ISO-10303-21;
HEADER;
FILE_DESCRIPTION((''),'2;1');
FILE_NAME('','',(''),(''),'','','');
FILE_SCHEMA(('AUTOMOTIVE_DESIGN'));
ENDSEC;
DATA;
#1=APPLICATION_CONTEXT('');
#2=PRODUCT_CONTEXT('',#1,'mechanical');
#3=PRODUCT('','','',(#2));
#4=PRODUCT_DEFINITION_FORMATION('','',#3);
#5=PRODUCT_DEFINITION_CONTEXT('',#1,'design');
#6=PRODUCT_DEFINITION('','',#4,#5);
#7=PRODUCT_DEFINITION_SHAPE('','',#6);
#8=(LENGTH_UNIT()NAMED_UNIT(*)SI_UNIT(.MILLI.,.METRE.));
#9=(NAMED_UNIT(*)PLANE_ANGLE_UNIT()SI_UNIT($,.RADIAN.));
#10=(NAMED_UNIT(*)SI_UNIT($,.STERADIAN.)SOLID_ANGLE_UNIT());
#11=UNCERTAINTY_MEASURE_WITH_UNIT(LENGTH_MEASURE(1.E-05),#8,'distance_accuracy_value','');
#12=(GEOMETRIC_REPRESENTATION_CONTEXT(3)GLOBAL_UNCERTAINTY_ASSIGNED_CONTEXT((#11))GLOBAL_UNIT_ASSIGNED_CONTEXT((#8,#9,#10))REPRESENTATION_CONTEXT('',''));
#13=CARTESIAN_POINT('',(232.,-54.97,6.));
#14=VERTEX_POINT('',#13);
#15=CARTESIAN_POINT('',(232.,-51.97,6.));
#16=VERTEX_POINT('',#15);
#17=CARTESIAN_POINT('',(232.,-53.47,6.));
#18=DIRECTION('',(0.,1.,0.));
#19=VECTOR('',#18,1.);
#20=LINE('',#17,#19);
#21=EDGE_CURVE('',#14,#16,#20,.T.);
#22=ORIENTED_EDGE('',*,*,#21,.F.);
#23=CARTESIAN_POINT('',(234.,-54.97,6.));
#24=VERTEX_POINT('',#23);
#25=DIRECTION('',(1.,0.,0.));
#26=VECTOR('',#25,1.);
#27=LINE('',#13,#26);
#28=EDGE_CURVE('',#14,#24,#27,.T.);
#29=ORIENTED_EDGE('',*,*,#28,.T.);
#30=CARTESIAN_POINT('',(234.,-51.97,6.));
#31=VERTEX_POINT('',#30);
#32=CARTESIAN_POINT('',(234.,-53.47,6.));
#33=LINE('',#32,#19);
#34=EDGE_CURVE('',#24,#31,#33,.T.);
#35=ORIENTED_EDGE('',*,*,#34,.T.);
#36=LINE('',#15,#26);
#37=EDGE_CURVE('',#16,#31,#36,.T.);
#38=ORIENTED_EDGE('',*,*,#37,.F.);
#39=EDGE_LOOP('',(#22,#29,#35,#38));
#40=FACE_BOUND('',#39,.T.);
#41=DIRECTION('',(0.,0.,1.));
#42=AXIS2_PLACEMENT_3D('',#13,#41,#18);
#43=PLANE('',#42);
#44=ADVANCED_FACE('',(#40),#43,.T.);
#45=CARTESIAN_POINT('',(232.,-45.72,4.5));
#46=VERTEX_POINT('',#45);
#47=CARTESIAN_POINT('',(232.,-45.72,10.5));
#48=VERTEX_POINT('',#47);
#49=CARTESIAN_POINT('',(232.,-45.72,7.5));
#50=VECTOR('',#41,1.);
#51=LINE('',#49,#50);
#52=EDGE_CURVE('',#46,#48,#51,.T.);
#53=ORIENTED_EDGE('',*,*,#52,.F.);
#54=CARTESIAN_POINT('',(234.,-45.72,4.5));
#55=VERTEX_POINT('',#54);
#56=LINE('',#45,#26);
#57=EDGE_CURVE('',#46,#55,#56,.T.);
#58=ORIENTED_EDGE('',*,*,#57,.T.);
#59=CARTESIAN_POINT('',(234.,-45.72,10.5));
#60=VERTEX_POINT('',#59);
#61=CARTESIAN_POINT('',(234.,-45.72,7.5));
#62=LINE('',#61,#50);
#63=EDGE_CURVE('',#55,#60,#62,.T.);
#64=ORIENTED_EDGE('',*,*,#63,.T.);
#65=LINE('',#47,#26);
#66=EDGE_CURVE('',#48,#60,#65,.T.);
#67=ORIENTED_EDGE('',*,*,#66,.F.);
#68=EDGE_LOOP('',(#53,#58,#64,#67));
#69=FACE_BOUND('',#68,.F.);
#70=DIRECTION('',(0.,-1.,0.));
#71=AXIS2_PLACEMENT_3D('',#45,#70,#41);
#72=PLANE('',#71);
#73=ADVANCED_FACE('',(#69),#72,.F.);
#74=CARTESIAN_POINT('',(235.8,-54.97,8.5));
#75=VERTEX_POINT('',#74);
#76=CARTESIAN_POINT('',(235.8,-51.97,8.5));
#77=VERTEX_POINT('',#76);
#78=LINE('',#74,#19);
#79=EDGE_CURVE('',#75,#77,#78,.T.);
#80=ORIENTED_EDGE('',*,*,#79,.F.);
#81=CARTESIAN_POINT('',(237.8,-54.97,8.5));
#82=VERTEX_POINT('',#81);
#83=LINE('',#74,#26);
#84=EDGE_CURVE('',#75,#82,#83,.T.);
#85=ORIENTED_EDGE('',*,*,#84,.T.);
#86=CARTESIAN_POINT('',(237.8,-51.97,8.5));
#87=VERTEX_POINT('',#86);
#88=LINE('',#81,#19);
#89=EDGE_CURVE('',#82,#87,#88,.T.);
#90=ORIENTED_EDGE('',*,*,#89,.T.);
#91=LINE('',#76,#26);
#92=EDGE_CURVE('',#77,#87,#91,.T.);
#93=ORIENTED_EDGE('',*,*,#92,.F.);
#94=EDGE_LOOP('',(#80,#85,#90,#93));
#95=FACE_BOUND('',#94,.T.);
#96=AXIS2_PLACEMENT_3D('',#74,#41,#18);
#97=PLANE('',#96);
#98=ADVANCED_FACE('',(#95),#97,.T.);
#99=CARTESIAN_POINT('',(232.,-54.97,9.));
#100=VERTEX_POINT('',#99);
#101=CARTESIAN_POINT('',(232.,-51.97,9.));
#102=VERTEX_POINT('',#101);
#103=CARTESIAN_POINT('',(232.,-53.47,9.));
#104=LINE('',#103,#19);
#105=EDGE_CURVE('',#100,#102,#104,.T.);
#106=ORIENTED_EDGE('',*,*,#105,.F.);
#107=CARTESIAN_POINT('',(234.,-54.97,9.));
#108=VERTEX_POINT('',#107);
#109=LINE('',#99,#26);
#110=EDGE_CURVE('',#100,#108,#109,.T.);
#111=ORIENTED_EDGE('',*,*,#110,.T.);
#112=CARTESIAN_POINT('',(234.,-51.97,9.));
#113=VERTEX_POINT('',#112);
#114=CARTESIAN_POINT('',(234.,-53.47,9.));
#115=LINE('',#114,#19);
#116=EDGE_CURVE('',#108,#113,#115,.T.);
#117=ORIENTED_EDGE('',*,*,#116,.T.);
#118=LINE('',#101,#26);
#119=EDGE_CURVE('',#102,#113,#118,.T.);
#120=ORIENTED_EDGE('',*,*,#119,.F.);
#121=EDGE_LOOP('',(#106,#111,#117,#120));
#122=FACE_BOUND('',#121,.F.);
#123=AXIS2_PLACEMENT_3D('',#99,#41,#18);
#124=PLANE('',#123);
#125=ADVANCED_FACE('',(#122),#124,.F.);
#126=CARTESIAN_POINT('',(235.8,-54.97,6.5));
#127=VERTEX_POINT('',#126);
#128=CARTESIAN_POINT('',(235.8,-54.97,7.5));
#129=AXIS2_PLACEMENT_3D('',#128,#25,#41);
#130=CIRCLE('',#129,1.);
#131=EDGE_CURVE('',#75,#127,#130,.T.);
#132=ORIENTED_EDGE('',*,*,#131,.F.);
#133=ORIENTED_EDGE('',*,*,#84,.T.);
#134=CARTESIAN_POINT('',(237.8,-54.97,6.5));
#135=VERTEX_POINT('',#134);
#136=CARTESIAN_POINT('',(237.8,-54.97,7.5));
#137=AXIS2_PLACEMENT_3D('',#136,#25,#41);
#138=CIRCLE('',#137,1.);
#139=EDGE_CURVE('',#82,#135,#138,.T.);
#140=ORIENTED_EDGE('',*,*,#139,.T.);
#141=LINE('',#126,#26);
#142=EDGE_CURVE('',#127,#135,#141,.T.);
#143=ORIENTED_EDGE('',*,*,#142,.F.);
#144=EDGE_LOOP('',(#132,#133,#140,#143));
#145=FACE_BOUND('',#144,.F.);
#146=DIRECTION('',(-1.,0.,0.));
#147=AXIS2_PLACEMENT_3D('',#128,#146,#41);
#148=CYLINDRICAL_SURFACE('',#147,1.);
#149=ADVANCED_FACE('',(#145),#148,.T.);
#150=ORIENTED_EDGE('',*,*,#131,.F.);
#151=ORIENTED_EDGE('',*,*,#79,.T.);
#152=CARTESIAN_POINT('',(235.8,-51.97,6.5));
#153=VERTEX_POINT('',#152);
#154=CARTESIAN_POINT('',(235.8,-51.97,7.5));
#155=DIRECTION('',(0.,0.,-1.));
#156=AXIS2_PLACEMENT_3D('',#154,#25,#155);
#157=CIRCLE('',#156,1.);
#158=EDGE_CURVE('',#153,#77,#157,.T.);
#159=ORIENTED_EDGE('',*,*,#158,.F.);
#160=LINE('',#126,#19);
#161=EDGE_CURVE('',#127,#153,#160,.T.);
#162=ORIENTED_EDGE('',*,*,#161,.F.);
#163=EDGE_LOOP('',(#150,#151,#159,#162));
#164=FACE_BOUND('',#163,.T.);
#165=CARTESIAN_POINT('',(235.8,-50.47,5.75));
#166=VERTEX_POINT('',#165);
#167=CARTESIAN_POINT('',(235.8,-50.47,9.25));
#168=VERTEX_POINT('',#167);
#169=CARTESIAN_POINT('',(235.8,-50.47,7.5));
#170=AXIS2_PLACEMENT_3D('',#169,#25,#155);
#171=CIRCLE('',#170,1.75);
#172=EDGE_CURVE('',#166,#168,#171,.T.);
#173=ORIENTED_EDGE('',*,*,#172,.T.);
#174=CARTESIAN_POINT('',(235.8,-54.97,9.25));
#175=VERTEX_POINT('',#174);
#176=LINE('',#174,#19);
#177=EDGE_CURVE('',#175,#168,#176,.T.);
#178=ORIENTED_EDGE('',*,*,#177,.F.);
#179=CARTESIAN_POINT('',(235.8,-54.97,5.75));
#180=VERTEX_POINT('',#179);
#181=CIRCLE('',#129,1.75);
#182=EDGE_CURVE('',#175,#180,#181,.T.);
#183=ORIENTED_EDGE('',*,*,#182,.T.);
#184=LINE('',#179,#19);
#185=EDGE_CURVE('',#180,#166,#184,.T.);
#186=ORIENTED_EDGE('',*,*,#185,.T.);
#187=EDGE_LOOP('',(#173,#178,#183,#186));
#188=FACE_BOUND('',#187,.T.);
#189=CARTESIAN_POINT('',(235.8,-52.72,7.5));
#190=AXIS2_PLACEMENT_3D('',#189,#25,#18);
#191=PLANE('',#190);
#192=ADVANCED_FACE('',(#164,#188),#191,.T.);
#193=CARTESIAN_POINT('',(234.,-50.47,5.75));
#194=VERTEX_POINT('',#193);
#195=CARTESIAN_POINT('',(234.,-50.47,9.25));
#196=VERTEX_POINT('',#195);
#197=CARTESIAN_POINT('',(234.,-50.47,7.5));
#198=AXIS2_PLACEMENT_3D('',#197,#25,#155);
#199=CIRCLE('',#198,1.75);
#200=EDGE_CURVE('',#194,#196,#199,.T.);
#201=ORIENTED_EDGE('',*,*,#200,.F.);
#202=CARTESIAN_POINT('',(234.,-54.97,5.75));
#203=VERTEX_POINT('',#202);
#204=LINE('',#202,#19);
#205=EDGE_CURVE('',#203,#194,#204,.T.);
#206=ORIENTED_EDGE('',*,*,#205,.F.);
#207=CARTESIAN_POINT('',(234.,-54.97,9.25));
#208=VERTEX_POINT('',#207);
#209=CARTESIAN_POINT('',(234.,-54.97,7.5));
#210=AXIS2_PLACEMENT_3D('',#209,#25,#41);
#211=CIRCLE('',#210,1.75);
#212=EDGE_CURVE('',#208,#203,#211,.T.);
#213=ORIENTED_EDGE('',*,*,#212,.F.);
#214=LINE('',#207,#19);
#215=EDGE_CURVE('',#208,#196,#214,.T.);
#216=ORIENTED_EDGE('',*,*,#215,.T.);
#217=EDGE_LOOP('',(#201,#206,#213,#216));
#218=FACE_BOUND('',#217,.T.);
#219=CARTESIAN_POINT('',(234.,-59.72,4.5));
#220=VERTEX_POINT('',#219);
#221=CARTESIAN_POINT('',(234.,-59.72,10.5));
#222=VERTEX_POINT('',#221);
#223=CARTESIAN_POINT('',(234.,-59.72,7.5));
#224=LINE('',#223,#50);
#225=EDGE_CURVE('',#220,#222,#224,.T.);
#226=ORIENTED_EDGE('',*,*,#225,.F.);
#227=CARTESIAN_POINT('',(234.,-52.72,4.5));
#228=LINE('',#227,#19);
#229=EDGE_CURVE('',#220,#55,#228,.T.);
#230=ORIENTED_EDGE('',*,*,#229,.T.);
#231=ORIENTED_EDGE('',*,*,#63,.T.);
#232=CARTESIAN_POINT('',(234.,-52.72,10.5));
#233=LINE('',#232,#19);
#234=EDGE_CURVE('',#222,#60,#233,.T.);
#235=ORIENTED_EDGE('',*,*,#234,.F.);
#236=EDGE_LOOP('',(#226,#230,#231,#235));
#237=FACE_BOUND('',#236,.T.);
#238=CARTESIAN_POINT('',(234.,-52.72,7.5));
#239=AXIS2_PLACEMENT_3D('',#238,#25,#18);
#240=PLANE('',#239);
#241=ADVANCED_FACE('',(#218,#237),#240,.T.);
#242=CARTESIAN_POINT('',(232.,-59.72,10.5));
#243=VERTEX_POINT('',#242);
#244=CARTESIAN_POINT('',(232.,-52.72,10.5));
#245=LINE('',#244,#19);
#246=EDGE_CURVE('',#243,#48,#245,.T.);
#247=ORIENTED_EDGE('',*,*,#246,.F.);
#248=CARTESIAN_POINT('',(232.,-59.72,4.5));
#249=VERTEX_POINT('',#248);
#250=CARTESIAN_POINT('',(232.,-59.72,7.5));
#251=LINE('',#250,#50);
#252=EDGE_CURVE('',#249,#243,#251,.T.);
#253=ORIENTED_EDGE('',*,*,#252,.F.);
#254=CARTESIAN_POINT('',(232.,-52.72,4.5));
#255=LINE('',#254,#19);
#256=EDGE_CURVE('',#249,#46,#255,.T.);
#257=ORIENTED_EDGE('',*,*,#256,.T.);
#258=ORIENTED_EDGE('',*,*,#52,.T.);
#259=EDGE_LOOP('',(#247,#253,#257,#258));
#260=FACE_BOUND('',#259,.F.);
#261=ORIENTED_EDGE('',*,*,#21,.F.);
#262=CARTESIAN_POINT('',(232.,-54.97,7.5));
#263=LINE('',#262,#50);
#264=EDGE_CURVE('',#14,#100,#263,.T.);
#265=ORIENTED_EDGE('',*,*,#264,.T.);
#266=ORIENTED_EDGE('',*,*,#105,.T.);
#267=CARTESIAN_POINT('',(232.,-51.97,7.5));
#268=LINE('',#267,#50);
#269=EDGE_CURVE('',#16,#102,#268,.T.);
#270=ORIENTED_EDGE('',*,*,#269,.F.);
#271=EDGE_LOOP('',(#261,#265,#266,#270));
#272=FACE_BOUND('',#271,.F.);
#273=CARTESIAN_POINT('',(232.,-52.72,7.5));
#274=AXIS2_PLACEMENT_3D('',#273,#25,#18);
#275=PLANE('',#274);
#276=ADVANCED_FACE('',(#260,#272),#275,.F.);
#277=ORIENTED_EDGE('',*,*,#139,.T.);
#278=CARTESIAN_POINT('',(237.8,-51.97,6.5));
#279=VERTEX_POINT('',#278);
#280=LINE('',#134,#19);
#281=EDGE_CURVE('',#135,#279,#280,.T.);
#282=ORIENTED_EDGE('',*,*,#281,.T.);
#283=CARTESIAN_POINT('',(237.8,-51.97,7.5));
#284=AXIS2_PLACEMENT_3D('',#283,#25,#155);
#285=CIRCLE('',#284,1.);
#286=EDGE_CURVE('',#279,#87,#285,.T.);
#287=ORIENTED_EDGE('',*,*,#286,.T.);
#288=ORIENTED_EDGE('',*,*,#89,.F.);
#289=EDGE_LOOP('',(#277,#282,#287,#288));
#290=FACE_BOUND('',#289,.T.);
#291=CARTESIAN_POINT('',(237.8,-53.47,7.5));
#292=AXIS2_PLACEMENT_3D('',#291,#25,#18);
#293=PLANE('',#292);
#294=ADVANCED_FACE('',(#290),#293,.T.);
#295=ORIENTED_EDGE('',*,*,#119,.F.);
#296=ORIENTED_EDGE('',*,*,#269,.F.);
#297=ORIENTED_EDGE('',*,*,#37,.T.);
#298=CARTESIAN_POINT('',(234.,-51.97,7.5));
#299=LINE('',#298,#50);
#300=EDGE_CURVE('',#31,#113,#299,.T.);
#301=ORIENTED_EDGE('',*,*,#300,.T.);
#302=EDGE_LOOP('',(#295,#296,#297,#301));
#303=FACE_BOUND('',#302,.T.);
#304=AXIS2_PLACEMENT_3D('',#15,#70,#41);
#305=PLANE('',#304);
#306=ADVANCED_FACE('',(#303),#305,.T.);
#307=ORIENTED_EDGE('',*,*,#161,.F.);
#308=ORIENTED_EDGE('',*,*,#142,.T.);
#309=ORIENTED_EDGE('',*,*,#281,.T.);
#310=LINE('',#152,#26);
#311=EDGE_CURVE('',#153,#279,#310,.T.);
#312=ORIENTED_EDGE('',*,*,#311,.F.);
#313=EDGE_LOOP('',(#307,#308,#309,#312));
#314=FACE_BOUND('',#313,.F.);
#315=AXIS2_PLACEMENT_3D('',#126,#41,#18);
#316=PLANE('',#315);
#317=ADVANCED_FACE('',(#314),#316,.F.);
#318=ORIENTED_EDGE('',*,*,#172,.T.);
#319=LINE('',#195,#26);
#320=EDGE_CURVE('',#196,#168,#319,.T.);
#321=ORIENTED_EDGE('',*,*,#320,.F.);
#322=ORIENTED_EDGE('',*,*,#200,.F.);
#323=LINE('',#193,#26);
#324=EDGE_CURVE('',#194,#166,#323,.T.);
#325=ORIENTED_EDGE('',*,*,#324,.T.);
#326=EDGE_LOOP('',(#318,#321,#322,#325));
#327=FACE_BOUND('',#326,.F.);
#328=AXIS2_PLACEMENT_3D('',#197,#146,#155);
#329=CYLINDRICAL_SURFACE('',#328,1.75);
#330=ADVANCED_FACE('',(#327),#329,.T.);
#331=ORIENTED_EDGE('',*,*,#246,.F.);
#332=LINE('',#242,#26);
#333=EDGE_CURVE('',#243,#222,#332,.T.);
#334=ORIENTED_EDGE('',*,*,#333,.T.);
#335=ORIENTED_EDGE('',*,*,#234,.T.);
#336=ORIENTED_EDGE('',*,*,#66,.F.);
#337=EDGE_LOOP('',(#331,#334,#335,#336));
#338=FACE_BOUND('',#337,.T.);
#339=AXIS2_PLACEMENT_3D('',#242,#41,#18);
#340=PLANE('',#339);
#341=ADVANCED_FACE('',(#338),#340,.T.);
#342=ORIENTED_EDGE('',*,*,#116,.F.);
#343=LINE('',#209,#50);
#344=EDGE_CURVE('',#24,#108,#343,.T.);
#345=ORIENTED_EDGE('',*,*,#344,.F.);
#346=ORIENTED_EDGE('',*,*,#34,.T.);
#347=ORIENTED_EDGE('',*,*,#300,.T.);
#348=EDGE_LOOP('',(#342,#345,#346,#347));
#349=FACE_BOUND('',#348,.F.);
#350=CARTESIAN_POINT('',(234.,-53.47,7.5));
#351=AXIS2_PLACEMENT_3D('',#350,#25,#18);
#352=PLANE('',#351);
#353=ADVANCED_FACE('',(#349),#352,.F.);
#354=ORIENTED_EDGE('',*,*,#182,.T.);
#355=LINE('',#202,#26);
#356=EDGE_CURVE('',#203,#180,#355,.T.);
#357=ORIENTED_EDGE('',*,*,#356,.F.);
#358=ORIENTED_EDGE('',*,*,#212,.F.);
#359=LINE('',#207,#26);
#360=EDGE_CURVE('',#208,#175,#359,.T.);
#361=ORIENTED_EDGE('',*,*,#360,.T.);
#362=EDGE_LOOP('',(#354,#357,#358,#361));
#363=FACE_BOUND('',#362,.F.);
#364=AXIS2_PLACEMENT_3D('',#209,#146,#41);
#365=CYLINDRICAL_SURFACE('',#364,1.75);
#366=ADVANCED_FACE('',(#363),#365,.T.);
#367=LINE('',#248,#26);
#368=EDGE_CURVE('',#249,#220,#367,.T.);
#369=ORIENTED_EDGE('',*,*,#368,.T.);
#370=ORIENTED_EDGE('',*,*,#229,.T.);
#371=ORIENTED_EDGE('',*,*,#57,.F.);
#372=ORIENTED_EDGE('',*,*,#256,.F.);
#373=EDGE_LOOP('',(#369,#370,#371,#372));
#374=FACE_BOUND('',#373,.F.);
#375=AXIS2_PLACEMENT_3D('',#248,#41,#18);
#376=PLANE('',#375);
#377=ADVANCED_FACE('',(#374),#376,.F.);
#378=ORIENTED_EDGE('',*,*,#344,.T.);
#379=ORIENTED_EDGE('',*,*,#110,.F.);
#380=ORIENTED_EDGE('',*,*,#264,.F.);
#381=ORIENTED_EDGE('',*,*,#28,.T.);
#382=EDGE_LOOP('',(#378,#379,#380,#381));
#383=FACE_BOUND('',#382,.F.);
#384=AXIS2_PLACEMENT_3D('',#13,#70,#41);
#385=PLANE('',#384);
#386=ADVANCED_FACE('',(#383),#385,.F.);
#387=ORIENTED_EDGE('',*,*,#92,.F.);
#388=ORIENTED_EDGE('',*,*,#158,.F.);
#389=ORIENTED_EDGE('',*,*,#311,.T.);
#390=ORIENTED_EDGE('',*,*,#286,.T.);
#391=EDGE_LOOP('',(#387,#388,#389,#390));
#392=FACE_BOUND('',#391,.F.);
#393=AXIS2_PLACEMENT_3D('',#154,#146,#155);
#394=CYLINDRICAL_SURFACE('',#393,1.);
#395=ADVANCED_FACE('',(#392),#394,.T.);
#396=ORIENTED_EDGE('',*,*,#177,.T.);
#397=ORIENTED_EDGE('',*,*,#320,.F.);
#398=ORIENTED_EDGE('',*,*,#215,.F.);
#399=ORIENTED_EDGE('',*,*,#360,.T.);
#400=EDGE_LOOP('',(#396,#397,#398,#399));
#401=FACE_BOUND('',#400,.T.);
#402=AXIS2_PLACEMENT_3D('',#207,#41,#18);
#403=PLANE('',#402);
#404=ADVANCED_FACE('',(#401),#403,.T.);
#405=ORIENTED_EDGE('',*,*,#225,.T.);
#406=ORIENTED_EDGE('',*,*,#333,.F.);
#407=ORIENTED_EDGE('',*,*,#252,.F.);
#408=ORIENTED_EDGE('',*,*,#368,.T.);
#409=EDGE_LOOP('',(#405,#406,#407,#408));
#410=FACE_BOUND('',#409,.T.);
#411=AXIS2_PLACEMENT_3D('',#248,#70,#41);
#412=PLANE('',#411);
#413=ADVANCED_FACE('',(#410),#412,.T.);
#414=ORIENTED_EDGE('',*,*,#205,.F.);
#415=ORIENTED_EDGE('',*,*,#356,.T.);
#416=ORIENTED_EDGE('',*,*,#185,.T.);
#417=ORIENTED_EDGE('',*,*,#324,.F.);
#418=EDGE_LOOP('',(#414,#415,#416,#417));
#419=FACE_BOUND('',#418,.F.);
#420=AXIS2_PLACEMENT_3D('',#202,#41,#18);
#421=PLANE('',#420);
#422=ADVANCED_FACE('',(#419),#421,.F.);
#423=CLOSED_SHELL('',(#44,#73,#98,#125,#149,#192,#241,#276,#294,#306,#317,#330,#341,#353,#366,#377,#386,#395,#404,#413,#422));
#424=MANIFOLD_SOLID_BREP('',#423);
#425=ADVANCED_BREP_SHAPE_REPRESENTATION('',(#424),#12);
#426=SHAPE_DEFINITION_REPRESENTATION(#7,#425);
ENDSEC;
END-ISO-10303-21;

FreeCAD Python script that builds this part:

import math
import FreeCAD as App
import Part
import Sketcher


def add_polygon(sketch, points):
    """Adds a closed chain of lines whose ends are joined by coincident constraints."""
    first, n = sketch.GeometryCount, len(points)
    for a, b in zip(points, points[1:] + points[:1]):
        sketch.addGeometry(Part.LineSegment(App.Vector(*a, 0), App.Vector(*b, 0)), False)
    for i in range(n):
        sketch.addConstraint(Sketcher.Constraint("Coincident", first + i, 2, first + (i + 1) % n, 1))

doc = App.newDocument("Part")
body = doc.addObject("PartDesign::Body", "Body")

# Sketch on YZ plane
sketch1 = body.newObject("Sketcher::SketchObject", "Sketch")
sketch1.AttachmentSupport = (doc.getObject("YZ_Plane"), [""])
sketch1.MapMode = "FlatFace"
sketch1.AttachmentOffset = App.Placement(App.Vector(0, 0, 232), App.Rotation())
add_polygon(sketch1, [(-59.72, 10.5), (-59.72, 4.5), (-45.72, 4.5), (-45.72, 10.5)])  # lines 0-3
sketch1.addConstraint([
    Sketcher.Constraint("Vertical", 0),
    Sketcher.Constraint("Horizontal", 1),
    Sketcher.Constraint("Vertical", 2),
    Sketcher.Constraint("Horizontal", 3),
    Sketcher.Constraint("DistanceX", 1, 1, 1, 2, 14.0),
    Sketcher.Constraint("DistanceY", 0, 2, 0, 1, 6.0),
    Sketcher.Constraint("DistanceY", -1, 1, 0, 2, 4.5),
    Sketcher.Constraint("DistanceX", 0, 2, -1, 1, 59.72),
])
pad1 = body.newObject("PartDesign::Pad", "Pad")
pad1.Profile = sketch1
pad1.Length = 2

# Sketch on YZ plane
sketch2 = body.newObject("Sketcher::SketchObject", "Sketch001")
sketch2.AttachmentSupport = (doc.getObject("YZ_Plane"), [""])
sketch2.MapMode = "FlatFace"
sketch2.AttachmentOffset = App.Placement(App.Vector(0, 0, 234), App.Rotation())
sketch2.addGeometry([
    Part.ArcOfCircle(Part.Circle(App.Vector(-54.97, 7.5, 0), App.Vector(0, 0, 1), 1.75), math.radians(90), math.radians(270)),
    Part.LineSegment(App.Vector(-54.97, 5.75, 0), App.Vector(-50.47, 5.75, 0)),
    Part.ArcOfCircle(Part.Circle(App.Vector(-50.47, 7.5, 0), App.Vector(0, 0, 1), 1.75), math.radians(-90), math.radians(90)),
    Part.LineSegment(App.Vector(-50.47, 9.25, 0), App.Vector(-54.97, 9.25, 0)),
], False)
sketch2.addConstraint([
    Sketcher.Constraint("Tangent", 0, 2, 1, 1),
    Sketcher.Constraint("Tangent", 1, 2, 2, 1),
    Sketcher.Constraint("Tangent", 2, 2, 3, 1),
    Sketcher.Constraint("Tangent", 3, 2, 0, 1),
    Sketcher.Constraint("Horizontal", 1),
    Sketcher.Constraint("Horizontal", 3),
    Sketcher.Constraint("Radius", 0, 1.75),
    Sketcher.Constraint("DistanceX", 1, 1, 1, 2, 4.5),
    Sketcher.Constraint("DistanceY", -1, 1, 0, 3, 7.5),
    Sketcher.Constraint("DistanceX", 0, 3, -1, 1, 54.97),
])
pad2 = body.newObject("PartDesign::Pad", "Pad001")
pad2.Profile = sketch2
pad2.Length = 1.8

# Sketch on YZ plane
sketch3 = body.newObject("Sketcher::SketchObject", "Sketch002")
sketch3.AttachmentSupport = (doc.getObject("YZ_Plane"), [""])
sketch3.MapMode = "FlatFace"
sketch3.AttachmentOffset = App.Placement(App.Vector(0, 0, 235.8), App.Rotation())
sketch3.addGeometry([
    Part.ArcOfCircle(Part.Circle(App.Vector(-54.97, 7.5, 0), App.Vector(0, 0, 1), 1), math.radians(90), math.radians(270)),
    Part.LineSegment(App.Vector(-54.97, 6.5, 0), App.Vector(-51.97, 6.5, 0)),
    Part.ArcOfCircle(Part.Circle(App.Vector(-51.97, 7.5, 0), App.Vector(0, 0, 1), 1), math.radians(-90), math.radians(90)),
    Part.LineSegment(App.Vector(-51.97, 8.5, 0), App.Vector(-54.97, 8.5, 0)),
], False)
sketch3.addConstraint([
    Sketcher.Constraint("Tangent", 0, 2, 1, 1),
    Sketcher.Constraint("Tangent", 1, 2, 2, 1),
    Sketcher.Constraint("Tangent", 2, 2, 3, 1),
    Sketcher.Constraint("Tangent", 3, 2, 0, 1),
    Sketcher.Constraint("Horizontal", 1),
    Sketcher.Constraint("Horizontal", 3),
    Sketcher.Constraint("Radius", 0, 1.0),
    Sketcher.Constraint("DistanceX", 1, 1, 1, 2, 3.0),
    Sketcher.Constraint("DistanceY", -1, 1, 0, 3, 7.5),
    Sketcher.Constraint("DistanceX", 0, 3, -1, 1, 54.97),
])
pad3 = body.newObject("PartDesign::Pad", "Pad002")
pad3.Profile = sketch3
pad3.Length = 2

# Sketch on YZ plane
sketch4 = body.newObject("Sketcher::SketchObject", "Sketch003")
sketch4.AttachmentSupport = (doc.getObject("YZ_Plane"), [""])
sketch4.MapMode = "FlatFace"
sketch4.AttachmentOffset = App.Placement(App.Vector(0, 0, 232), App.Rotation())
add_polygon(sketch4, [(-54.97, 9), (-54.97, 6), (-51.97, 6), (-51.97, 9)])  # lines 0-3
sketch4.addConstraint([
    Sketcher.Constraint("Vertical", 0),
    Sketcher.Constraint("Horizontal", 1),
    Sketcher.Constraint("Vertical", 2),
    Sketcher.Constraint("Horizontal", 3),
    Sketcher.Constraint("Equal", 3, 0),
    Sketcher.Constraint("DistanceX", 1, 1, 1, 2, 3.0),
    Sketcher.Constraint("DistanceY", -1, 1, 0, 2, 6.0),
    Sketcher.Constraint("DistanceX", 0, 2, -1, 1, 54.97),
])
pocket1 = body.newObject("PartDesign::Pocket", "Pocket")
pocket1.Profile = sketch4
pocket1.Length = 2
pocket1.Reversed = True

doc.recompute()
